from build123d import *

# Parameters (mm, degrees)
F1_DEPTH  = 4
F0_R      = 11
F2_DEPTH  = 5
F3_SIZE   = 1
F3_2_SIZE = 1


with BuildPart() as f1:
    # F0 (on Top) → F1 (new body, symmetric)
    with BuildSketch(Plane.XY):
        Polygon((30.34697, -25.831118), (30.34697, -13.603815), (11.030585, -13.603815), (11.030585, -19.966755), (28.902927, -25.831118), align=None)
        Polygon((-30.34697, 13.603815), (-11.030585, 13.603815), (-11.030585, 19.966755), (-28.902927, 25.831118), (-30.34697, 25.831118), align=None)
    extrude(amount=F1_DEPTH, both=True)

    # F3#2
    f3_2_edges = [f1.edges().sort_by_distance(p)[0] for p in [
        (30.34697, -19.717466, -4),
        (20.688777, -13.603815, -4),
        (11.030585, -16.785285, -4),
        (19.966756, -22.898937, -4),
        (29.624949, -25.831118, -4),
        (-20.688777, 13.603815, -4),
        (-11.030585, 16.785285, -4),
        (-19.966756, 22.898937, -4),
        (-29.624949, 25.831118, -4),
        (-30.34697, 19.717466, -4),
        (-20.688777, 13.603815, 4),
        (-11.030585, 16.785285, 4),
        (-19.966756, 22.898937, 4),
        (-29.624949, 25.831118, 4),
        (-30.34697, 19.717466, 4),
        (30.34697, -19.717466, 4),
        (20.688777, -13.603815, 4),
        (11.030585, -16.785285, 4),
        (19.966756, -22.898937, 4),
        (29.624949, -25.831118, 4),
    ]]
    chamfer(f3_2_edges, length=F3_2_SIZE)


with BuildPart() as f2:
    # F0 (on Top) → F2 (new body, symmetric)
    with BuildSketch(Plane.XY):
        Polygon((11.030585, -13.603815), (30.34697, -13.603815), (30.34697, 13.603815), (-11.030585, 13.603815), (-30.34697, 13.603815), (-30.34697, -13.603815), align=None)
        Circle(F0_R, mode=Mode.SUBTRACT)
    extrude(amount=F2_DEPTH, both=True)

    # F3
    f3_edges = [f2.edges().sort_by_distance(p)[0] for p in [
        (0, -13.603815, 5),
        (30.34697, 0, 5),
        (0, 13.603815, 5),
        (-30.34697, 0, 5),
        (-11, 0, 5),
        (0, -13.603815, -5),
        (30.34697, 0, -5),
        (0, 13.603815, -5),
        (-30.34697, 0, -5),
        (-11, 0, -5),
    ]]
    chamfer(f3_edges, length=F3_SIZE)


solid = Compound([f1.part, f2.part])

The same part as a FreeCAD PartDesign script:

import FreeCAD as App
import Part
import Sketcher

V = App.Vector
Q = App.Units.Quantity


def edges_at(feature, points):
    """Names of the edges that pass closest to the given points."""
    edges = feature.Shape.Edges
    near = lambda p: min(range(len(edges)), key=lambda i: edges[i].distToShape(Part.Vertex(*p))[0])
    return sorted({f"Edge{near(p) + 1}" for p in points})


def add_polygon(sketch, points):
    """Adds a closed chain of lines whose ends are joined by coincident constraints."""
    first, n = sketch.GeometryCount, len(points)
    for a, b in zip(points, points[1:] + points[:1]):
        sketch.addGeometry(Part.LineSegment(App.Vector(*a, 0), App.Vector(*b, 0)), False)
    for i in range(n):
        sketch.addConstraint(Sketcher.Constraint("Coincident", first + i, 2, first + (i + 1) % n, 1))

doc = App.newDocument("Part")
body = doc.addObject("PartDesign::Body", "Body")
body.AllowCompound = True

# Sketch on XY plane
sketch1 = body.newObject("Sketcher::SketchObject", "Sketch")
sketch1.AttachmentSupport = (doc.getObject("XY_Plane"), [""])
sketch1.MapMode = "FlatFace"
add_polygon(sketch1, [(30.3, -25.8), (30.3, -13.6), (11, -13.6), (11, -20), (28.9, -25.8)])  # lines 0-4
add_polygon(sketch1, [(-30.3, 13.6), (-11, 13.6), (-11, 20), (-28.9, 25.8), (-30.3, 25.8)])  # lines 5-9
sketch1.addConstraint([
    Sketcher.Constraint("Vertical", 0),
    Sketcher.Constraint("Horizontal", 1),
    Sketcher.Constraint("Vertical", 2),
    Sketcher.Constraint("Horizontal", 4),
    Sketcher.Constraint("Horizontal", 5),
    Sketcher.Constraint("Vertical", 6),
    Sketcher.Constraint("Horizontal", 8),
    Sketcher.Constraint("Vertical", 9),
    Sketcher.Constraint("Symmetric", 1, 2, 5, 2, -1, 1),
    Sketcher.Constraint("Symmetric", 3, 2, 7, 2, -1, 1),
    Sketcher.Constraint("Parallel", 3, 7),
    Sketcher.Constraint("Equal", 1, 5),
    Sketcher.Constraint("DistanceY", 2, 2, 2, 1, Q("6.36294 mm")),
    Sketcher.Constraint("DistanceX", 1, 2, 1, 1, Q("19.316385 mm")),
    Sketcher.Constraint("DistanceX", 4, 1, 4, 2, Q("1.444043 mm")),
    Sketcher.Constraint("DistanceY", 0, 1, 0, 2, Q("12.227303 mm")),
    Sketcher.Constraint("DistanceX", -1, 1, 0, 2, Q("30.34697 mm")),
    Sketcher.Constraint("DistanceY", 3, 2, -1, 1, Q("25.831118 mm")),
])
pad1 = body.newObject("PartDesign::Pad", "Pad")
pad1.Profile = sketch1
pad1.Length = 8
pad1.Midplane = True
doc.recompute()

chamfer = body.newObject("PartDesign::Chamfer", "Chamfer")
chamfer.Base = (pad1, edges_at(pad1, [
    (30.347, -19.717, -4),
    (20.689, -13.604, -4),
    (11.031, -16.785, -4),
    (19.967, -22.899, -4),
    (29.625, -25.831, -4),
    (-20.689, 13.604, -4),
    (-11.031, 16.785, -4),
    (-19.967, 22.899, -4),
    (-29.625, 25.831, -4),
    (-30.347, 19.717, -4),
    (-20.689, 13.604, 4),
    (-11.031, 16.785, 4),
    (-19.967, 22.899, 4),
    (-29.625, 25.831, 4),
    (-30.347, 19.717, 4),
    (30.347, -19.717, 4),
    (20.689, -13.604, 4),
    (11.031, -16.785, 4),
    (19.967, -22.899, 4),
    (29.625, -25.831, 4),
]))
chamfer.Size = 1
body2 = doc.addObject("PartDesign::Body", "Body001")

# Sketch on XY plane
sketch2 = body2.newObject("Sketcher::SketchObject", "Sketch001")
sketch2.AttachmentSupport = (doc.getObject("XY_Plane001"), [""])
sketch2.MapMode = "FlatFace"
add_polygon(sketch2, [(30, -14), (30, 14), (-30, 14), (-30, -14)])  # lines 0-3
sketch2.addGeometry(Part.Circle(V(0, 0, 0), V(0, 0, 1), 11), False)  # 4
sketch2.addConstraint([
    Sketcher.Constraint("Vertical", 0),
    Sketcher.Constraint("Horizontal", 1),
    Sketcher.Constraint("Vertical", 2),
    Sketcher.Constraint("Horizontal", 3),
    Sketcher.Constraint("Coincident", 4, 3, -1, 1),
    Sketcher.Constraint("Symmetric", 0, 2, 2, 2, -1, 1),
    Sketcher.Constraint("Diameter", 4, Q("22 mm")),
    Sketcher.Constraint("DistanceX", 1, 2, 1, 1, Q("60.69394 mm")),
    Sketcher.Constraint("DistanceY", 0, 1, 0, 2, Q("27.20763 mm")),
])
pad2 = body2.newObject("PartDesign::Pad", "Pad001")
pad2.Profile = sketch2
pad2.Length = 10
pad2.Midplane = True
doc.recompute()

chamfer2 = body2.newObject("PartDesign::Chamfer", "Chamfer001")
chamfer2.Base = (pad2, edges_at(pad2, [
    (0, -13.604, 5),
    (30.347, 0, 5),
    (0, 13.604, 5),
    (-30.347, 0, 5),
    (-11, 0, 5),
    (0, -13.604, -5),
    (30.347, 0, -5),
    (0, 13.604, -5),
    (-30.347, 0, -5),
    (-11, 0, -5),
]))
chamfer2.Size = 1

doc.recompute()
